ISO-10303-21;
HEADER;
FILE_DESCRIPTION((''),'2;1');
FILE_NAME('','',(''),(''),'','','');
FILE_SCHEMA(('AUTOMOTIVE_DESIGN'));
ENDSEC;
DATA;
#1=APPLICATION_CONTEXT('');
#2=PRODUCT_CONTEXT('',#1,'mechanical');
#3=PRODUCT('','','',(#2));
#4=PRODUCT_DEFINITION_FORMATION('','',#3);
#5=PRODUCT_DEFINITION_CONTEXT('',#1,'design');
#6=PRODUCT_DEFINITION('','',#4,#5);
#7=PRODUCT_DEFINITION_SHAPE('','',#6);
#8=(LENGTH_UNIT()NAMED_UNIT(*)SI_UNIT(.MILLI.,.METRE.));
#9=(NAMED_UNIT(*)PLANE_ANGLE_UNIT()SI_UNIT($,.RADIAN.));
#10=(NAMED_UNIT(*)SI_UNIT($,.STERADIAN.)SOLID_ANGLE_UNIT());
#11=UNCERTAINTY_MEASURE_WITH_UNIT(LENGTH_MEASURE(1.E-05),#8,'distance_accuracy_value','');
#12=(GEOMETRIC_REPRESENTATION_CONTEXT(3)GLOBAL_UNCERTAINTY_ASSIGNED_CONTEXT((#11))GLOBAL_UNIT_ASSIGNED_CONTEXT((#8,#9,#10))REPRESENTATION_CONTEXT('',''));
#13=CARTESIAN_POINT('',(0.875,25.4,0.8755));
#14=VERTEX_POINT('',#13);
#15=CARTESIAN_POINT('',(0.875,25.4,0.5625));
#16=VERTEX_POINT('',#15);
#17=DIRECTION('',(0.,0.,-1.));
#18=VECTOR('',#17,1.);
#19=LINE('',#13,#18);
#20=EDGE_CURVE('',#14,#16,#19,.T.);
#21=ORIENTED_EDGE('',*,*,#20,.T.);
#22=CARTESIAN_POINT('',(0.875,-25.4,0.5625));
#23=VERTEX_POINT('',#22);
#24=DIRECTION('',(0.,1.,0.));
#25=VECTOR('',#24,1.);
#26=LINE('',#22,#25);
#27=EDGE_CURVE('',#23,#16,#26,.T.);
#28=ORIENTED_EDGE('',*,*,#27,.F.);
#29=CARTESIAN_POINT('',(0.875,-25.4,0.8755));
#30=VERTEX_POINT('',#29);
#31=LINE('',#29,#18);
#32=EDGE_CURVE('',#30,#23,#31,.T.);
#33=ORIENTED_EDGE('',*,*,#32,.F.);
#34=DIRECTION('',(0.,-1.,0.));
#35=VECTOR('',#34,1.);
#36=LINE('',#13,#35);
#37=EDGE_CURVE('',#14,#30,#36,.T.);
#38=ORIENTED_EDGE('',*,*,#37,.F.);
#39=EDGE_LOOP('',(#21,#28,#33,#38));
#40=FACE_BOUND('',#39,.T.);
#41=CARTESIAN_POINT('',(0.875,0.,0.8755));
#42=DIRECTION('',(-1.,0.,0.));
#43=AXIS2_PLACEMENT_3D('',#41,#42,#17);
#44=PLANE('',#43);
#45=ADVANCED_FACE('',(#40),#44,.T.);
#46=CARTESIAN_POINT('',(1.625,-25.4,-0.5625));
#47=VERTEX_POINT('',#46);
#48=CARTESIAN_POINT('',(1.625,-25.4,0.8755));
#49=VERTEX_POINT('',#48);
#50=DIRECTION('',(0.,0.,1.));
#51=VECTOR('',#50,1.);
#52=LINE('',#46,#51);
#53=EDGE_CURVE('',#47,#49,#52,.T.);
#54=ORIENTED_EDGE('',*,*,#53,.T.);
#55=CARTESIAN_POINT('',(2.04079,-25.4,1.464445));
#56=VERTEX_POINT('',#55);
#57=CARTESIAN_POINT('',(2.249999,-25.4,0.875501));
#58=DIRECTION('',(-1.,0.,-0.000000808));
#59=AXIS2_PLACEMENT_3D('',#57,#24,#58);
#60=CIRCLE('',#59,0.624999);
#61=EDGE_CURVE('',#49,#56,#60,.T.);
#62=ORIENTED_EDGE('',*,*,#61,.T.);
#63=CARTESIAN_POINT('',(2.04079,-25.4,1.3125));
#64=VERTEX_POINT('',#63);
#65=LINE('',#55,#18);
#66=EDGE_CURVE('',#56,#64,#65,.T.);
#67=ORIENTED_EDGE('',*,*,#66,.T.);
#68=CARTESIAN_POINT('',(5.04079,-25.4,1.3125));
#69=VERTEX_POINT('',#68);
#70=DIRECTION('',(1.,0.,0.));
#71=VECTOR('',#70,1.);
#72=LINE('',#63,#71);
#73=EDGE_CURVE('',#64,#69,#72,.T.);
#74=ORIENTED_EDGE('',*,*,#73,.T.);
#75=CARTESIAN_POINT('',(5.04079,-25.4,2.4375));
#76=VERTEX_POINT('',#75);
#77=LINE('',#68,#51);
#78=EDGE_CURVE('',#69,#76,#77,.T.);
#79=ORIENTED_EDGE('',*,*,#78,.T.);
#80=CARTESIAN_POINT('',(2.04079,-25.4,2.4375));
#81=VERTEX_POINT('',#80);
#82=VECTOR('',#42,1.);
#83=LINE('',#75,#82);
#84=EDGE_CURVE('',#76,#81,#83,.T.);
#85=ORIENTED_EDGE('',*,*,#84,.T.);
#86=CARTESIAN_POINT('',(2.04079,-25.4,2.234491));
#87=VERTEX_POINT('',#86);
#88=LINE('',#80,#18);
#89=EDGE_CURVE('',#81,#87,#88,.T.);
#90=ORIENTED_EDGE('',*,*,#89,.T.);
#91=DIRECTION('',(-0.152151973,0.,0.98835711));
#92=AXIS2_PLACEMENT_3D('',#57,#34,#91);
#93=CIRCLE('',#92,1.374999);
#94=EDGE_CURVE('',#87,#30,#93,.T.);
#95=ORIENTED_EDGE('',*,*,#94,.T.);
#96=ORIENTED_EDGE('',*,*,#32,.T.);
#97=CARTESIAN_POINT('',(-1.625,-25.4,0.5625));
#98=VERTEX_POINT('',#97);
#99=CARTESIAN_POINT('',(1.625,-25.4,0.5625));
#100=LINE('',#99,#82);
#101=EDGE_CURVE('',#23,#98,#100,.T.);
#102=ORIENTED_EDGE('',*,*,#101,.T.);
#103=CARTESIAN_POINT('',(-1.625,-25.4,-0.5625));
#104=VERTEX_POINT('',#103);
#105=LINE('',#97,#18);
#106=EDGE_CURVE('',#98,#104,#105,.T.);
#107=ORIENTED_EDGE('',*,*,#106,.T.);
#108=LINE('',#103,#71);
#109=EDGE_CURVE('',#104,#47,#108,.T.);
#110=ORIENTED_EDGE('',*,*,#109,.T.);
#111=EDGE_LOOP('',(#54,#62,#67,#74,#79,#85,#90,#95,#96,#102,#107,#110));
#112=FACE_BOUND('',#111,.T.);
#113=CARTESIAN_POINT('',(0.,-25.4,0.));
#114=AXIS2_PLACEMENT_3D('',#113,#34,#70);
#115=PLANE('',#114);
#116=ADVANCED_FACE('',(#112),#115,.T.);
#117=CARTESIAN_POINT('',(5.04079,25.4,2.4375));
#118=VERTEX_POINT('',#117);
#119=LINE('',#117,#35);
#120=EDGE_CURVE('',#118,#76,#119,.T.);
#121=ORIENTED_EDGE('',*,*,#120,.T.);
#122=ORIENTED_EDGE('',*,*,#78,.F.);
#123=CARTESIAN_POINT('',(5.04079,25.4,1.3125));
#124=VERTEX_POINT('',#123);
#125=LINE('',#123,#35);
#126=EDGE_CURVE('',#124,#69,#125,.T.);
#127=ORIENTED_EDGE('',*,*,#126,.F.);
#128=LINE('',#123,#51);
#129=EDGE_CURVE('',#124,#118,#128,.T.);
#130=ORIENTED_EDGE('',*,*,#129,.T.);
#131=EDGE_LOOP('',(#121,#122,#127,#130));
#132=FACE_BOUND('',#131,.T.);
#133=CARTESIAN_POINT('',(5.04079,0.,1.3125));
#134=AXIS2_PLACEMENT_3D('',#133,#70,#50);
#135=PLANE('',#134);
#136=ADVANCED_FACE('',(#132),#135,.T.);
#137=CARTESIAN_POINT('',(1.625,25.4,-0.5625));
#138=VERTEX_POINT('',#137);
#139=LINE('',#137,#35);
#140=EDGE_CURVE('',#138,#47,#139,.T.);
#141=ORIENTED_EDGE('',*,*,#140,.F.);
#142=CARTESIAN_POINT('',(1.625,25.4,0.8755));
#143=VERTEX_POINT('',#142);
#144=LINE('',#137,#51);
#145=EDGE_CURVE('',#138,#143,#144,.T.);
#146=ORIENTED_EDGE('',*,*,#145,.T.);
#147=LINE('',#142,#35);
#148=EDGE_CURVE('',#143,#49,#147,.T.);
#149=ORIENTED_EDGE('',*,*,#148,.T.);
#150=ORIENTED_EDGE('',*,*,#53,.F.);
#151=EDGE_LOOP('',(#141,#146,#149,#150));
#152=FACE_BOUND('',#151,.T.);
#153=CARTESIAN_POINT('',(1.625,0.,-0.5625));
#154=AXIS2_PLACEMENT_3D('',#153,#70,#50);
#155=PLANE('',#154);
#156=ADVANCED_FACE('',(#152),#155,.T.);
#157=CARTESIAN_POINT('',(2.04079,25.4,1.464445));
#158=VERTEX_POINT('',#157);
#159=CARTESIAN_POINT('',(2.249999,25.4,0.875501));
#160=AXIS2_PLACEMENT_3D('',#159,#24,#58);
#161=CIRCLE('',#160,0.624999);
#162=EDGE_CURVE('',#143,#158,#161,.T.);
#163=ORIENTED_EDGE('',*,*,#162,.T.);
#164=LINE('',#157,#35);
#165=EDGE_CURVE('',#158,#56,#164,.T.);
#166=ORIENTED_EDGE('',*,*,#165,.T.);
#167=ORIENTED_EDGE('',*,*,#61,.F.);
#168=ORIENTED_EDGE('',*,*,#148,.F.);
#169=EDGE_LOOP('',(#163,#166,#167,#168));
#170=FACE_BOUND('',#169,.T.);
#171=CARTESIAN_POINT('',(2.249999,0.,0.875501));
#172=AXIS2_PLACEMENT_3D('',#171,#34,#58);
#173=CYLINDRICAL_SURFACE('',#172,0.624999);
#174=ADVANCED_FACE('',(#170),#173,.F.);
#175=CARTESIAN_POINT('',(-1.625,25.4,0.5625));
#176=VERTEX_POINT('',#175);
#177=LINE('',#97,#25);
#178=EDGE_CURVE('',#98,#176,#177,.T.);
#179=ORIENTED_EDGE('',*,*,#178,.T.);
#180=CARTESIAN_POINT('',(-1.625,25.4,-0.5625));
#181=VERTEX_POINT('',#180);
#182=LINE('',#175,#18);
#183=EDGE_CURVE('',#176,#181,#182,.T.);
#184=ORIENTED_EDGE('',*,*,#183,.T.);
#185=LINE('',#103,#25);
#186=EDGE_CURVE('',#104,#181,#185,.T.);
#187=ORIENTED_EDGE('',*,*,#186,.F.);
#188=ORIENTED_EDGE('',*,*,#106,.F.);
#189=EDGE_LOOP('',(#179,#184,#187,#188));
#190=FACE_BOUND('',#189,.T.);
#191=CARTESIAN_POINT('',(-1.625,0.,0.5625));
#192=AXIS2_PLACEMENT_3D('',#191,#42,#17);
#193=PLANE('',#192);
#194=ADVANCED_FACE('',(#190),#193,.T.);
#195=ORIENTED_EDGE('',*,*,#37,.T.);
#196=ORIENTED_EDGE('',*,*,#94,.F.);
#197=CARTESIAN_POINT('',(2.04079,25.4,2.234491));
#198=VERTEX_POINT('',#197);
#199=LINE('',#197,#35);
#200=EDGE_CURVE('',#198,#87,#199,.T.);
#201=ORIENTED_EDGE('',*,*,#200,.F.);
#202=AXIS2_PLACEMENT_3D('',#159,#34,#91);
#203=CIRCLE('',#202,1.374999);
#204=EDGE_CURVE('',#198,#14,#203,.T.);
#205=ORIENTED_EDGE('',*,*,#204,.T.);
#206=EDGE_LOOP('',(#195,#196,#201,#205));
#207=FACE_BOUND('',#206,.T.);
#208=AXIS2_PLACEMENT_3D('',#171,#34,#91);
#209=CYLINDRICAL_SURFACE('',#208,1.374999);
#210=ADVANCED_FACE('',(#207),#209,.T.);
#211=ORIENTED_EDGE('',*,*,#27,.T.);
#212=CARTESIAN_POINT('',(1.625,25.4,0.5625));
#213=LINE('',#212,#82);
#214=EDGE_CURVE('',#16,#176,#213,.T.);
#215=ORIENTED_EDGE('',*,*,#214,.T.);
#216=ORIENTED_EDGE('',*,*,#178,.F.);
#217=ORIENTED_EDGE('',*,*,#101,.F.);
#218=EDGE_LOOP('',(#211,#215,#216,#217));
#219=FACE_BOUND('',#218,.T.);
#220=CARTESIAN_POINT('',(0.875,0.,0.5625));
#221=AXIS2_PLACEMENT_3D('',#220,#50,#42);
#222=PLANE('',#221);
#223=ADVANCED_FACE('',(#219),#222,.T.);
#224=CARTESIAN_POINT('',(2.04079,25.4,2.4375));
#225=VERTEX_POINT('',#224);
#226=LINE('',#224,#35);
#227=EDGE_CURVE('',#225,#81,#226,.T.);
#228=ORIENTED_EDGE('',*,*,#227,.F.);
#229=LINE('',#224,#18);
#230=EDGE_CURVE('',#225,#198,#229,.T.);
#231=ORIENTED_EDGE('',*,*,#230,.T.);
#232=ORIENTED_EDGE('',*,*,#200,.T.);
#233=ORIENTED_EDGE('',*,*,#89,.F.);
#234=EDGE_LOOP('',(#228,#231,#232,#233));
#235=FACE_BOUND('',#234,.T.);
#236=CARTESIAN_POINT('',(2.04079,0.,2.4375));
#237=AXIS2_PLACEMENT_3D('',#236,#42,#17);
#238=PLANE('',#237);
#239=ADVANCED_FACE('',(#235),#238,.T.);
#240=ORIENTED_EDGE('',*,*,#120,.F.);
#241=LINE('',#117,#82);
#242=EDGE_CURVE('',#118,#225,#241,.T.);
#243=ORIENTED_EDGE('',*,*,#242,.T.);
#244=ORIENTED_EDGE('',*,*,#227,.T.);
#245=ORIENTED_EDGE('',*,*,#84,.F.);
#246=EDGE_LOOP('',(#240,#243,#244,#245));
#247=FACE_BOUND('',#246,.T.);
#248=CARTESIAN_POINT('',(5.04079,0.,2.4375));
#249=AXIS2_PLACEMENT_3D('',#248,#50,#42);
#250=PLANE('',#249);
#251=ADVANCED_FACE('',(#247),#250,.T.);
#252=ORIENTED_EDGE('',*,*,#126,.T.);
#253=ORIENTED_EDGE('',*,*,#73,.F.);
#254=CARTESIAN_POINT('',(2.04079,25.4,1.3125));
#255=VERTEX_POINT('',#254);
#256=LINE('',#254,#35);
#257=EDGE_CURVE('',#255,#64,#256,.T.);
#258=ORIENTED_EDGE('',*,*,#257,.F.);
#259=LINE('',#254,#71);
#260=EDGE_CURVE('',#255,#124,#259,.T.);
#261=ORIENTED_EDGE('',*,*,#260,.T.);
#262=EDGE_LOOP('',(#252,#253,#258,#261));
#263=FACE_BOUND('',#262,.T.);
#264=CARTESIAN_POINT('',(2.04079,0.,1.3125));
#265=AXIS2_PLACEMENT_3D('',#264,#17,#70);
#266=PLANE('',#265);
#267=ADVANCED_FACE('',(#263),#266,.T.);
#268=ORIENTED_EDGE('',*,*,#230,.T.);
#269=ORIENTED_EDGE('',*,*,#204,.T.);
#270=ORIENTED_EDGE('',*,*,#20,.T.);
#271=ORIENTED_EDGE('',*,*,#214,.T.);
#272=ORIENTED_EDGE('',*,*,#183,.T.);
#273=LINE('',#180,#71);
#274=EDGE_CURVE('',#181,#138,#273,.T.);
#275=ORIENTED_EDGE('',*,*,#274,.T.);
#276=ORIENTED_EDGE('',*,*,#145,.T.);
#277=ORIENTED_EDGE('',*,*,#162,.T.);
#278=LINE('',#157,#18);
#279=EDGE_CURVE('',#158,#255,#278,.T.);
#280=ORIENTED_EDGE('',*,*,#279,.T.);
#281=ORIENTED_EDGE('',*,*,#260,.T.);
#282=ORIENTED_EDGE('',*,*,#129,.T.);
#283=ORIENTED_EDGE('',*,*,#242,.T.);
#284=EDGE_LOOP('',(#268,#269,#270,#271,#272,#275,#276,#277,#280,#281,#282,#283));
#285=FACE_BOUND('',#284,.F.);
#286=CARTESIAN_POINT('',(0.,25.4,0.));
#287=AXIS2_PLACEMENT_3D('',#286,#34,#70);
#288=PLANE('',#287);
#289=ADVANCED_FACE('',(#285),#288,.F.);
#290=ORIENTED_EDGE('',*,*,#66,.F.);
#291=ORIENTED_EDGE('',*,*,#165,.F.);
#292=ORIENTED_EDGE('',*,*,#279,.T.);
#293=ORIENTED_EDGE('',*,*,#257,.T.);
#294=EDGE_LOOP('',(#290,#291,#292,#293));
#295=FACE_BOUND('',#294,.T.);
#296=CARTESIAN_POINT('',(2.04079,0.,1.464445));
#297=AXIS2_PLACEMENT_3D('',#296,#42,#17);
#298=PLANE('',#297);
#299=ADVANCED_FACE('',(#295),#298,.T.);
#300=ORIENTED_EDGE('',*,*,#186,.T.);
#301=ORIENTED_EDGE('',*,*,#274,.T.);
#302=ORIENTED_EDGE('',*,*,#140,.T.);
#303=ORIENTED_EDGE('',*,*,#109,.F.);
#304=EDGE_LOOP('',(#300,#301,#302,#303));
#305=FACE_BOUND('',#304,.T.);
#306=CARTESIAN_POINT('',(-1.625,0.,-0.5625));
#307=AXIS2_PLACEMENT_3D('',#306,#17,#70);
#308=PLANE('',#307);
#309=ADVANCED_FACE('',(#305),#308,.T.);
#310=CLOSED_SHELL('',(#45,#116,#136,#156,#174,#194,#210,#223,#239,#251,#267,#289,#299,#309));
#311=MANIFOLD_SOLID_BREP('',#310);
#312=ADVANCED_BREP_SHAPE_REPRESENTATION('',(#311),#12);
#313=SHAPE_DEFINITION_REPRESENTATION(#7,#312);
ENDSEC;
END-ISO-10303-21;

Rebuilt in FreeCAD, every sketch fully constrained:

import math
import FreeCAD as App
import Part
import Sketcher

V = App.Vector

doc = App.newDocument("Part")
params = doc.addObject("Spreadsheet::Sheet", "Params")
for row, (alias, value) in enumerate([
    ("sketch1_width", "3 mm"),
    ("sketch1_width2", "2.5 mm"),
    ("pad1_length", "50.8 mm"),
], start=1):
    params.set(f"A{row}", alias)
    params.set(f"B{row}", "=" + value)
    params.setAlias(f"B{row}", alias)

body = doc.addObject("PartDesign::Body", "Body")

sketch1 = doc.addObject("Sketcher::SketchObject", "Sketch")
body.addObject(sketch1)
sketch1.AttachmentSupport = (doc.XZ_Plane, [""])
sketch1.MapMode = "FlatFace"
sketch1.addGeometry(Part.LineSegment(V(-1.625, -0.5625, 0), V(1.625, -0.5625, 0)), False)
sketch1.addGeometry(Part.LineSegment(V(1.625, -0.5625, 0), V(1.625, 0.8755, 0)), False)
sketch1.addGeometry(Part.ArcOfCircle(Part.Circle(V(2.249999, 0.875501, 0), V(0, 0, 1), 0.624999), math.radians(109.556442), math.radians(180.000046)), False)
sketch1.addGeometry(Part.LineSegment(V(2.04079, 1.464445, 0), V(2.04079, 1.3125, 0)), False)
sketch1.addGeometry(Part.LineSegment(V(2.04079, 1.3125, 0), V(5.04079, 1.3125, 0)), False)
sketch1.addGeometry(Part.LineSegment(V(5.04079, 1.3125, 0), V(5.04079, 2.4375, 0)), False)
sketch1.addGeometry(Part.LineSegment(V(5.04079, 2.4375, 0), V(2.04079, 2.4375, 0)), False)
sketch1.addGeometry(Part.LineSegment(V(2.04079, 2.4375, 0), V(2.04079, 2.234491, 0)), False)
sketch1.addGeometry(Part.ArcOfCircle(Part.Circle(V(2.249999, 0.875501, 0), V(0, 0, 1), 1.374999), math.radians(98.751657), math.radians(180.000049)), False)
sketch1.addGeometry(Part.LineSegment(V(0.875, 0.8755, 0), V(0.875, 0.5625, 0)), False)
sketch1.addGeometry(Part.LineSegment(V(0.875, 0.5625, 0), V(-1.625, 0.5625, 0)), False)
sketch1.addGeometry(Part.LineSegment(V(-1.625, 0.5625, 0), V(-1.625, -0.5625, 0)), False)
sketch1.addConstraint(Sketcher.Constraint("Coincident", 0, 2, 1, 1))
sketch1.addConstraint(Sketcher.Constraint("Tangent", 1, 2, 2, 2))
sketch1.addConstraint(Sketcher.Constraint("Coincident", 2, 1, 3, 1))
sketch1.addConstraint(Sketcher.Constraint("Coincident", 3, 2, 4, 1))
sketch1.addConstraint(Sketcher.Constraint("Coincident", 4, 2, 5, 1))
sketch1.addConstraint(Sketcher.Constraint("Coincident", 5, 2, 6, 1))
sketch1.addConstraint(Sketcher.Constraint("Coincident", 6, 2, 7, 1))
sketch1.addConstraint(Sketcher.Constraint("Coincident", 7, 2, 8, 1))
sketch1.addConstraint(Sketcher.Constraint("Tangent", 8, 2, 9, 1))
sketch1.addConstraint(Sketcher.Constraint("Coincident", 9, 2, 10, 1))
sketch1.addConstraint(Sketcher.Constraint("Coincident", 10, 2, 11, 1))
sketch1.addConstraint(Sketcher.Constraint("Coincident", 11, 2, 0, 1))
sketch1.addConstraint(Sketcher.Constraint("Horizontal", 0))
sketch1.addConstraint(Sketcher.Constraint("Vertical", 1))
sketch1.addConstraint(Sketcher.Constraint("Vertical", 3))
sketch1.addConstraint(Sketcher.Constraint("Horizontal", 4))
sketch1.addConstraint(Sketcher.Constraint("Vertical", 5))
sketch1.addConstraint(Sketcher.Constraint("Horizontal", 6))
sketch1.addConstraint(Sketcher.Constraint("Vertical", 7))
sketch1.addConstraint(Sketcher.Constraint("Vertical", 9))
sketch1.addConstraint(Sketcher.Constraint("Horizontal", 10))
sketch1.addConstraint(Sketcher.Constraint("Vertical", 11))
sketch1.addConstraint(Sketcher.Constraint("Coincident", 8, 3, 2, 3))
sketch1.addConstraint(Sketcher.Constraint("Symmetric", 0, 2, 10, 2, -1, 1))
sketch1.addConstraint(Sketcher.Constraint("Vertical", 3, 2, 6, 2))
sketch1.addConstraint(Sketcher.Constraint("Equal", 5, 11))
sketch1.addConstraint(Sketcher.Constraint("DistanceX", 4, 1, 4, 2, 3.0))
sketch1.addConstraint(Sketcher.Constraint("DistanceX", 10, 2, 10, 1, 2.5))
sketch1.addConstraint(Sketcher.Constraint("Radius", 2, 0.624999))
sketch1.addConstraint(Sketcher.Constraint("Radius", 8, 1.374999))
sketch1.addConstraint(Sketcher.Constraint("DistanceY", 1, 1, 1, 2, 1.438))
sketch1.addConstraint(Sketcher.Constraint("DistanceY", 5, 1, 5, 2, 1.125))
sketch1.addConstraint(Sketcher.Constraint("DistanceY", 9, 2, 3, 2, 0.75))
sketch1.addConstraint(Sketcher.Constraint("DistanceY", 7, 2, 7, 1, 0.203009))
sketch1.setExpression("Constraints[26]", "Params.sketch1_width")
sketch1.setExpression("Constraints[27]", "Params.sketch1_width2")
pad1 = doc.addObject("PartDesign::Pad", "Pad")
body.addObject(pad1)
pad1.Profile = sketch1
pad1.setExpression("Length", "Params.pad1_length")
pad1.Midplane = True

doc.recompute()
